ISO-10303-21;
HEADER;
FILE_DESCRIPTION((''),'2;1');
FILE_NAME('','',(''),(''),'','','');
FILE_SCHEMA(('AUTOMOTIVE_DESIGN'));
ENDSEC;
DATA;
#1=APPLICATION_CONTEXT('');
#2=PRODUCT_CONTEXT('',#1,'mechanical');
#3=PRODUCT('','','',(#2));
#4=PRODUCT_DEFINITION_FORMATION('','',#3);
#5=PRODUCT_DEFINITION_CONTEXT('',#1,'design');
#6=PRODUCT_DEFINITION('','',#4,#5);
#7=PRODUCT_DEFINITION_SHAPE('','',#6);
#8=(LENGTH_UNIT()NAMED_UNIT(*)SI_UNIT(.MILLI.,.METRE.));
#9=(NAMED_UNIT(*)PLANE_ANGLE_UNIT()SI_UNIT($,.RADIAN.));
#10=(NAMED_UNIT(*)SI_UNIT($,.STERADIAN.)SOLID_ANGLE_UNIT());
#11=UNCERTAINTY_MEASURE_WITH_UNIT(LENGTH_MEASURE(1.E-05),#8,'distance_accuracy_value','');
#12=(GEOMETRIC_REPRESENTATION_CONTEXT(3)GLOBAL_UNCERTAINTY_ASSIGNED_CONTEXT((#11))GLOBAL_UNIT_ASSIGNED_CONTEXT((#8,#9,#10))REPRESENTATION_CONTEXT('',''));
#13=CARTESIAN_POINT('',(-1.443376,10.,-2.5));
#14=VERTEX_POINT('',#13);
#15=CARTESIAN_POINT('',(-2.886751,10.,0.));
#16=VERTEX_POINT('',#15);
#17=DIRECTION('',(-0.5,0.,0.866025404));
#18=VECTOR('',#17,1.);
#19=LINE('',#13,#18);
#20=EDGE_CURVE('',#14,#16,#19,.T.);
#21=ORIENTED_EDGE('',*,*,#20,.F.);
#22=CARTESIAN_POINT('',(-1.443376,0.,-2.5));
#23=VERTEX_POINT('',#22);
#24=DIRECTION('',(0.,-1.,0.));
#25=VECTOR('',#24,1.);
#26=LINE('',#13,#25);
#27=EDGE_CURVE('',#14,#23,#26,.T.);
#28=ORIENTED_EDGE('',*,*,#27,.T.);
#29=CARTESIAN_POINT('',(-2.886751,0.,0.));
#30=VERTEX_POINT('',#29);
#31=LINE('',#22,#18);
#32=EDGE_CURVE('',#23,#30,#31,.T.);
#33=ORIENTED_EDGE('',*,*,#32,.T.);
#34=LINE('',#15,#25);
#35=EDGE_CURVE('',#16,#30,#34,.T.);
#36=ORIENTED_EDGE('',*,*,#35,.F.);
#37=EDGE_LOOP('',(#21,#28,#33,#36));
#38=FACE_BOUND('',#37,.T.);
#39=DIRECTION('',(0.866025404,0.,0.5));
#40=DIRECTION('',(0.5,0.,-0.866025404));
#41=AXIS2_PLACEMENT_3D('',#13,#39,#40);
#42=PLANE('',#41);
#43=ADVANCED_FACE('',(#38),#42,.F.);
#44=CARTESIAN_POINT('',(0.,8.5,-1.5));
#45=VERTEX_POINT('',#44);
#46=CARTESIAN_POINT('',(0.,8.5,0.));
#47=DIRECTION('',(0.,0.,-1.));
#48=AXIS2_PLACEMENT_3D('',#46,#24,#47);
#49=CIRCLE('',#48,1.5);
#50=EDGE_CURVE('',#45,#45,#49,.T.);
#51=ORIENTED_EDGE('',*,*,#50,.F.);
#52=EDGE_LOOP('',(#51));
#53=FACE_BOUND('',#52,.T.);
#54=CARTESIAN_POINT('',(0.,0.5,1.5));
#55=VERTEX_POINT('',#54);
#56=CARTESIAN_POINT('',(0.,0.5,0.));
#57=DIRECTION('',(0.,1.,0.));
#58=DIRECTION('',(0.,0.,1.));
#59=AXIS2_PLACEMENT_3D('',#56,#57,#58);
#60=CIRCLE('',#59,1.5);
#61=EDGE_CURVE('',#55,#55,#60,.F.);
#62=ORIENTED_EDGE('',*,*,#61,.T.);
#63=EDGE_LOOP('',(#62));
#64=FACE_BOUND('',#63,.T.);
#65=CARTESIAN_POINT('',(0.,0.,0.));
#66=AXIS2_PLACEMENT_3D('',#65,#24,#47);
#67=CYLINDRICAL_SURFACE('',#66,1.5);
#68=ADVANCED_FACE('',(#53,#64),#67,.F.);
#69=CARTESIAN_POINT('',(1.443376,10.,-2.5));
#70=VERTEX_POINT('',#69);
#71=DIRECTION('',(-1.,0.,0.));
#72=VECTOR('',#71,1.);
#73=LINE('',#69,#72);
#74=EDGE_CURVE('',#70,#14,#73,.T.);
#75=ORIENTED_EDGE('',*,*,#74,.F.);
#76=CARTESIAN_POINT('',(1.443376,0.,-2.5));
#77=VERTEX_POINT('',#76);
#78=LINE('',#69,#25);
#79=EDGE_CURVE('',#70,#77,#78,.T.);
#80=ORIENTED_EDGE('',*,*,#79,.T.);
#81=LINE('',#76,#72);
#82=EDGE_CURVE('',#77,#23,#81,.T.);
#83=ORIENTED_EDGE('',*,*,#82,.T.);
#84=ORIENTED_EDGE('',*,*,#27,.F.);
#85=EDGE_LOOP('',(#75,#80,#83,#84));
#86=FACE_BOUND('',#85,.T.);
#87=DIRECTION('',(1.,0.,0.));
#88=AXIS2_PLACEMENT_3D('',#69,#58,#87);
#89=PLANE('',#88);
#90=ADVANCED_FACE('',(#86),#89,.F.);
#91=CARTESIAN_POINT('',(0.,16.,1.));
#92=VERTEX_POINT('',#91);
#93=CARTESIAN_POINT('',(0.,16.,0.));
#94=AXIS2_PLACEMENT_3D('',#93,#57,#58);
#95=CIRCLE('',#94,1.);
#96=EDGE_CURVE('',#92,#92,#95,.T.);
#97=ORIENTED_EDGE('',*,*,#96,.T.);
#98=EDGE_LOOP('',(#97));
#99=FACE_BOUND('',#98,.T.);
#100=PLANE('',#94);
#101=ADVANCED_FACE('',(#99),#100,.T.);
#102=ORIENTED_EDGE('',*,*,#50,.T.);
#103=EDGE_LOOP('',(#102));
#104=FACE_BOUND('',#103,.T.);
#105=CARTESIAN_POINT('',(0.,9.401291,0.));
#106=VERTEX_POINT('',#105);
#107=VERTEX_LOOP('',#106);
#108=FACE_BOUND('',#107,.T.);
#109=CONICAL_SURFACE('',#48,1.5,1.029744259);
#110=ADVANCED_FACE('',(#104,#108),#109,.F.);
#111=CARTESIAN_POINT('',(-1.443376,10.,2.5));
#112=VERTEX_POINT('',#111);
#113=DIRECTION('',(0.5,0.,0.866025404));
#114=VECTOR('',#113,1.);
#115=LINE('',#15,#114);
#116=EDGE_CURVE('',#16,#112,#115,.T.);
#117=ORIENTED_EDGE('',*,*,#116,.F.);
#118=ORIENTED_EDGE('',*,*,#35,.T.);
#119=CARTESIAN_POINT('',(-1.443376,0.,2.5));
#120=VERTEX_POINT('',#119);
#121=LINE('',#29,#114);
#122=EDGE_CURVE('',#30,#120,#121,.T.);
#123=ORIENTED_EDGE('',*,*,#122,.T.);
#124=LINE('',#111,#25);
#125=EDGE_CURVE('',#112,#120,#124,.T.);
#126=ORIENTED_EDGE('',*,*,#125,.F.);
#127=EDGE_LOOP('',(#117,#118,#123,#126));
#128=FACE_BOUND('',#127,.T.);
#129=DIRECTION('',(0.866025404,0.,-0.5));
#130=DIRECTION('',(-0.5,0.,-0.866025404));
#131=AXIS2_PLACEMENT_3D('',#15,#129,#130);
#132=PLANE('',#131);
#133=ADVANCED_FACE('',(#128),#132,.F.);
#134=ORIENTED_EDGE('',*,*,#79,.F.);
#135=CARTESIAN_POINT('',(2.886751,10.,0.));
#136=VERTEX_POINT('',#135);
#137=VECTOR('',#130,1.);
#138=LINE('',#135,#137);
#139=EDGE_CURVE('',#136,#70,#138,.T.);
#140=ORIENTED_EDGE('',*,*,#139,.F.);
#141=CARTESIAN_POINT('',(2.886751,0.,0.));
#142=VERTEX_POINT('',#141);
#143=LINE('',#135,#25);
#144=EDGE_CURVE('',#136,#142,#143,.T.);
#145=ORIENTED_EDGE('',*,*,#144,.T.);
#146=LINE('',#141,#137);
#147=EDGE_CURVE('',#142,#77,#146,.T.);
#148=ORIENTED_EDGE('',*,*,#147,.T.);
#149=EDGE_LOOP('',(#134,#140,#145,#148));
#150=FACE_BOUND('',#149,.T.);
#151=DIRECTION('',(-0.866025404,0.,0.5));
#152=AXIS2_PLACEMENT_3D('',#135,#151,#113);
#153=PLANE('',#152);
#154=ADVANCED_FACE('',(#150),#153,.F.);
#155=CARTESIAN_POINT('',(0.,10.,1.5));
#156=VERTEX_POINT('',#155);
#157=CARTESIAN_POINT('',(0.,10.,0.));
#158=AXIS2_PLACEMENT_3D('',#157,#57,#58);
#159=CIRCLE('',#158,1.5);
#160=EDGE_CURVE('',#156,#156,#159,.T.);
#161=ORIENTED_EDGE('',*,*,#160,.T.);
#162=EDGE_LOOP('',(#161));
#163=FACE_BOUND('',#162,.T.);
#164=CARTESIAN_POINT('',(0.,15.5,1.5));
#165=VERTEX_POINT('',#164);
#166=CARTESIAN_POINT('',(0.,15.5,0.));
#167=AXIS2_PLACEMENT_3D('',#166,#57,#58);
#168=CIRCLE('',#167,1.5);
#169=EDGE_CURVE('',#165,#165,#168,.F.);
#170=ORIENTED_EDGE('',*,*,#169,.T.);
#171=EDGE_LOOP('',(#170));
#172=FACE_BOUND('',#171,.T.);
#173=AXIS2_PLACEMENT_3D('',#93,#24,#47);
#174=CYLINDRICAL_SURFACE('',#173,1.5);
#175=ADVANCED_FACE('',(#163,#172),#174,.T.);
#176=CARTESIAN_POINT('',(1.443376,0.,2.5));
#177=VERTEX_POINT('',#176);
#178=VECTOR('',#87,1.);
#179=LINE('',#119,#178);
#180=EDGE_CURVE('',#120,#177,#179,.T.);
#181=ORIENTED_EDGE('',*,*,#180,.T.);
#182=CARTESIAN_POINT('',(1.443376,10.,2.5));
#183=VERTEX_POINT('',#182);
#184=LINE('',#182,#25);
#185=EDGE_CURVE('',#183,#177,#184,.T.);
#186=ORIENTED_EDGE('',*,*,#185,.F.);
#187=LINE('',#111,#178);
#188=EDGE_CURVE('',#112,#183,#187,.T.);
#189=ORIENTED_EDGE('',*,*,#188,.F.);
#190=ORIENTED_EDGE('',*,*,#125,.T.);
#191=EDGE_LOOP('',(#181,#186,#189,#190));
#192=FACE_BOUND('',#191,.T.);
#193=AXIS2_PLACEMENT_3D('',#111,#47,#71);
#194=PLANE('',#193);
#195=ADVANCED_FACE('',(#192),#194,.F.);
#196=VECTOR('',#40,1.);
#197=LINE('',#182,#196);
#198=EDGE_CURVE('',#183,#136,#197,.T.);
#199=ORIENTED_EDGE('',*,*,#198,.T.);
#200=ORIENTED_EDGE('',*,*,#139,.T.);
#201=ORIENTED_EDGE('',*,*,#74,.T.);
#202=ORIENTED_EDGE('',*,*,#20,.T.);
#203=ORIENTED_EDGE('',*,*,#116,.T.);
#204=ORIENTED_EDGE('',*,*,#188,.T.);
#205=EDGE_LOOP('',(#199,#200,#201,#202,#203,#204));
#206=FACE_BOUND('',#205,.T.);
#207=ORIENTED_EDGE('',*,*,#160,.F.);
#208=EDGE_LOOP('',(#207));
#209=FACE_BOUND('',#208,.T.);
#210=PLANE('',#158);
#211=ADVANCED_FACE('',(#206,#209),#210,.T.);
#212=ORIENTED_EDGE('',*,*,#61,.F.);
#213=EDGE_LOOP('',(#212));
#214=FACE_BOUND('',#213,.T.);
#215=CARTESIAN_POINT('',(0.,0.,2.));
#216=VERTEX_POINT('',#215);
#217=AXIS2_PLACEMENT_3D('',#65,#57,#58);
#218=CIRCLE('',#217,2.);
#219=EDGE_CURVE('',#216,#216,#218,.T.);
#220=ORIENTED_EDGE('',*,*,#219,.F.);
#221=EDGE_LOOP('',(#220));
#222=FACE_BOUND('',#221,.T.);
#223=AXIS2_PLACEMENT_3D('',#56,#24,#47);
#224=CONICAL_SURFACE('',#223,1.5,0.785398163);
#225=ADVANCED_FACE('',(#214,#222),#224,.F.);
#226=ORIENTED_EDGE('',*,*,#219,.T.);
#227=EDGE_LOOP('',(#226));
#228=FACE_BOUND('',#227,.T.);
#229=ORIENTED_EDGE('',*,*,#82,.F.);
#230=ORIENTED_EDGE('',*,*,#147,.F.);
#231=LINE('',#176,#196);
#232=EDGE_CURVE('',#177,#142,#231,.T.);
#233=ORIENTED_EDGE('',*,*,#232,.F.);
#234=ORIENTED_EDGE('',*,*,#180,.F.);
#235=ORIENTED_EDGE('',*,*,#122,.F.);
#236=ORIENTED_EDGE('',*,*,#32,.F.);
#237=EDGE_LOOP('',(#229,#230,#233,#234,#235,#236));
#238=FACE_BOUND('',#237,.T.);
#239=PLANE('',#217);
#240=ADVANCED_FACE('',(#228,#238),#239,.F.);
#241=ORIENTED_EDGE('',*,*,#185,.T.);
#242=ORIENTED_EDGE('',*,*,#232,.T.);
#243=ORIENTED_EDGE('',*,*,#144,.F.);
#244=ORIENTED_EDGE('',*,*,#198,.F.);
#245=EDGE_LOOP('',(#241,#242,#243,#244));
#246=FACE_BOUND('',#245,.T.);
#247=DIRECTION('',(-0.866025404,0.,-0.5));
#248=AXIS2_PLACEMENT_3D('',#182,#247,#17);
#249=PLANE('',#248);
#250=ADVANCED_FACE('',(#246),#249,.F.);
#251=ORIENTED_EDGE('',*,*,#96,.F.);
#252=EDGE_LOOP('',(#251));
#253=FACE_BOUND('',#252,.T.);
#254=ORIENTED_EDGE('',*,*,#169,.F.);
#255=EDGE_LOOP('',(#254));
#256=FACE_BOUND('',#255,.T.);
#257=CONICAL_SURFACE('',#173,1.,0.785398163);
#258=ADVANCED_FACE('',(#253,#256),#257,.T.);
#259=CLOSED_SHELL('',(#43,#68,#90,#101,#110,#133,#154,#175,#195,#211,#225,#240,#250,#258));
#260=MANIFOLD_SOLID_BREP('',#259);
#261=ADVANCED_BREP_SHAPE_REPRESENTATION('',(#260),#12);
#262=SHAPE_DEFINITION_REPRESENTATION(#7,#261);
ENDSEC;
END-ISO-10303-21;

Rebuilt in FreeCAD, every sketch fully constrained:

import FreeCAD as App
import Part
import Sketcher

V = App.Vector
Q = App.Units.Quantity


def edges_at(feature, points):
    """Names of the edges that pass closest to the given points."""
    edges = feature.Shape.Edges
    near = lambda p: min(range(len(edges)), key=lambda i: edges[i].distToShape(Part.Vertex(*p))[0])
    return sorted({f"Edge{near(p) + 1}" for p in points})


def add_polygon(sketch, points):
    """Adds a closed chain of lines whose ends are joined by coincident constraints."""
    first, n = sketch.GeometryCount, len(points)
    for a, b in zip(points, points[1:] + points[:1]):
        sketch.addGeometry(Part.LineSegment(App.Vector(*a, 0), App.Vector(*b, 0)), False)
    for i in range(n):
        sketch.addConstraint(Sketcher.Constraint("Coincident", first + i, 2, first + (i + 1) % n, 1))

doc = App.newDocument("Part")
params = doc.addObject("Spreadsheet::Sheet", "Params")
for row, (alias, value) in enumerate([
    ("pad1_length", "10 mm"),
    ("sketch2_diameter", "3 mm"),
    ("hole_diameter", "3 mm"),
    ("hole_depth", "8.5 mm"),
    ("sketch3_diameter", "3 mm"),
    ("pad2_length", "6 mm"),
    ("chamfer_size", "0.5 mm"),
], start=1):
    params.set(f"A{row}", alias)
    params.set(f"B{row}", "=" + value)
    params.setAlias(f"B{row}", alias)

body = doc.addObject("PartDesign::Body", "Body")

# Sketch on XZ plane
sketch1 = body.newObject("Sketcher::SketchObject", "Sketch")
sketch1.AttachmentSupport = (doc.getObject("XZ_Plane"), [""])
sketch1.MapMode = "FlatFace"
add_polygon(sketch1, [(1.4, 2.5), (2.9, 0), (1.4, -2.5), (-1.4, -2.5), (-2.9, 0), (-1.4, 2.5)])  # lines 0-5
sketch1.addConstraint([
    Sketcher.Constraint("Horizontal", 2),
    Sketcher.Constraint("Horizontal", 5),
    Sketcher.Constraint("Symmetric", 0, 2, 3, 2, -1, 1),
    Sketcher.Constraint("Symmetric", 1, 2, 4, 2, -1, 1),
    Sketcher.Constraint("PointOnObject", 0, 2, -1),
    Sketcher.Constraint("Parallel", 0, 3),
    Sketcher.Constraint("Vertical", 2, 2, 4, 2),
    Sketcher.Constraint("Angle", 0, Q("-60 deg")),
    Sketcher.Constraint("DistanceY", 2, 2, 4, 2, Q("5 mm")),
    Sketcher.Constraint("DistanceX", 2, 2, 2, 1, Q("2.886751 mm")),
])
pad1 = body.newObject("PartDesign::Pad", "Pad")
pad1.Profile = sketch1
pad1.setExpression("Length", "Params.pad1_length")
pad1.Reversed = True

# Sketch on XZ plane
sketch2 = body.newObject("Sketcher::SketchObject", "Sketch001")
sketch2.AttachmentSupport = (doc.getObject("XZ_Plane"), [""])
sketch2.MapMode = "FlatFace"
sketch2.addGeometry(Part.Circle(V(0, 0, 0), V(0, 0, 1), 1.5), False)
sketch2.addConstraint([
    Sketcher.Constraint("Coincident", 0, 3, -1, 1),
    Sketcher.Constraint("Diameter", 0, Q("3 mm")),
])
sketch2.setExpression("Constraints[1]", "Params.sketch2_diameter")
doc.recompute()
hole = body.newObject("PartDesign::Hole", "Hole")
hole.Profile = sketch2
hole.ThreadType = "None"
hole.setExpression("Diameter", "Params.hole_diameter")
hole.DepthType = "Dimension"
hole.setExpression("Depth", "Params.hole_depth")
hole.DrillPoint = "Angled"
hole.DrillPointAngle = 118

# Sketch on XZ plane
sketch3 = body.newObject("Sketcher::SketchObject", "Sketch002")
sketch3.AttachmentSupport = (doc.getObject("XZ_Plane"), [""])
sketch3.MapMode = "FlatFace"
sketch3.AttachmentOffset = App.Placement(V(0, 0, -16), App.Rotation())
sketch3.addGeometry(Part.Circle(V(0, 0, 0), V(0, 0, 1), 1.5), False)
sketch3.addConstraint([
    Sketcher.Constraint("Coincident", 0, 3, -1, 1),
    Sketcher.Constraint("Diameter", 0, Q("3 mm")),
])
sketch3.setExpression("Constraints[1]", "Params.sketch3_diameter")
pad2 = body.newObject("PartDesign::Pad", "Pad001")
pad2.Profile = sketch3
pad2.setExpression("Length", "Params.pad2_length")
doc.recompute()

chamfer = body.newObject("PartDesign::Chamfer", "Chamfer")
chamfer.Base = (pad2, edges_at(pad2, [(-1.5, 0, 0), (0, 16, 1.5)]))
chamfer.setExpression("Size", "Params.chamfer_size")

doc.recompute()
